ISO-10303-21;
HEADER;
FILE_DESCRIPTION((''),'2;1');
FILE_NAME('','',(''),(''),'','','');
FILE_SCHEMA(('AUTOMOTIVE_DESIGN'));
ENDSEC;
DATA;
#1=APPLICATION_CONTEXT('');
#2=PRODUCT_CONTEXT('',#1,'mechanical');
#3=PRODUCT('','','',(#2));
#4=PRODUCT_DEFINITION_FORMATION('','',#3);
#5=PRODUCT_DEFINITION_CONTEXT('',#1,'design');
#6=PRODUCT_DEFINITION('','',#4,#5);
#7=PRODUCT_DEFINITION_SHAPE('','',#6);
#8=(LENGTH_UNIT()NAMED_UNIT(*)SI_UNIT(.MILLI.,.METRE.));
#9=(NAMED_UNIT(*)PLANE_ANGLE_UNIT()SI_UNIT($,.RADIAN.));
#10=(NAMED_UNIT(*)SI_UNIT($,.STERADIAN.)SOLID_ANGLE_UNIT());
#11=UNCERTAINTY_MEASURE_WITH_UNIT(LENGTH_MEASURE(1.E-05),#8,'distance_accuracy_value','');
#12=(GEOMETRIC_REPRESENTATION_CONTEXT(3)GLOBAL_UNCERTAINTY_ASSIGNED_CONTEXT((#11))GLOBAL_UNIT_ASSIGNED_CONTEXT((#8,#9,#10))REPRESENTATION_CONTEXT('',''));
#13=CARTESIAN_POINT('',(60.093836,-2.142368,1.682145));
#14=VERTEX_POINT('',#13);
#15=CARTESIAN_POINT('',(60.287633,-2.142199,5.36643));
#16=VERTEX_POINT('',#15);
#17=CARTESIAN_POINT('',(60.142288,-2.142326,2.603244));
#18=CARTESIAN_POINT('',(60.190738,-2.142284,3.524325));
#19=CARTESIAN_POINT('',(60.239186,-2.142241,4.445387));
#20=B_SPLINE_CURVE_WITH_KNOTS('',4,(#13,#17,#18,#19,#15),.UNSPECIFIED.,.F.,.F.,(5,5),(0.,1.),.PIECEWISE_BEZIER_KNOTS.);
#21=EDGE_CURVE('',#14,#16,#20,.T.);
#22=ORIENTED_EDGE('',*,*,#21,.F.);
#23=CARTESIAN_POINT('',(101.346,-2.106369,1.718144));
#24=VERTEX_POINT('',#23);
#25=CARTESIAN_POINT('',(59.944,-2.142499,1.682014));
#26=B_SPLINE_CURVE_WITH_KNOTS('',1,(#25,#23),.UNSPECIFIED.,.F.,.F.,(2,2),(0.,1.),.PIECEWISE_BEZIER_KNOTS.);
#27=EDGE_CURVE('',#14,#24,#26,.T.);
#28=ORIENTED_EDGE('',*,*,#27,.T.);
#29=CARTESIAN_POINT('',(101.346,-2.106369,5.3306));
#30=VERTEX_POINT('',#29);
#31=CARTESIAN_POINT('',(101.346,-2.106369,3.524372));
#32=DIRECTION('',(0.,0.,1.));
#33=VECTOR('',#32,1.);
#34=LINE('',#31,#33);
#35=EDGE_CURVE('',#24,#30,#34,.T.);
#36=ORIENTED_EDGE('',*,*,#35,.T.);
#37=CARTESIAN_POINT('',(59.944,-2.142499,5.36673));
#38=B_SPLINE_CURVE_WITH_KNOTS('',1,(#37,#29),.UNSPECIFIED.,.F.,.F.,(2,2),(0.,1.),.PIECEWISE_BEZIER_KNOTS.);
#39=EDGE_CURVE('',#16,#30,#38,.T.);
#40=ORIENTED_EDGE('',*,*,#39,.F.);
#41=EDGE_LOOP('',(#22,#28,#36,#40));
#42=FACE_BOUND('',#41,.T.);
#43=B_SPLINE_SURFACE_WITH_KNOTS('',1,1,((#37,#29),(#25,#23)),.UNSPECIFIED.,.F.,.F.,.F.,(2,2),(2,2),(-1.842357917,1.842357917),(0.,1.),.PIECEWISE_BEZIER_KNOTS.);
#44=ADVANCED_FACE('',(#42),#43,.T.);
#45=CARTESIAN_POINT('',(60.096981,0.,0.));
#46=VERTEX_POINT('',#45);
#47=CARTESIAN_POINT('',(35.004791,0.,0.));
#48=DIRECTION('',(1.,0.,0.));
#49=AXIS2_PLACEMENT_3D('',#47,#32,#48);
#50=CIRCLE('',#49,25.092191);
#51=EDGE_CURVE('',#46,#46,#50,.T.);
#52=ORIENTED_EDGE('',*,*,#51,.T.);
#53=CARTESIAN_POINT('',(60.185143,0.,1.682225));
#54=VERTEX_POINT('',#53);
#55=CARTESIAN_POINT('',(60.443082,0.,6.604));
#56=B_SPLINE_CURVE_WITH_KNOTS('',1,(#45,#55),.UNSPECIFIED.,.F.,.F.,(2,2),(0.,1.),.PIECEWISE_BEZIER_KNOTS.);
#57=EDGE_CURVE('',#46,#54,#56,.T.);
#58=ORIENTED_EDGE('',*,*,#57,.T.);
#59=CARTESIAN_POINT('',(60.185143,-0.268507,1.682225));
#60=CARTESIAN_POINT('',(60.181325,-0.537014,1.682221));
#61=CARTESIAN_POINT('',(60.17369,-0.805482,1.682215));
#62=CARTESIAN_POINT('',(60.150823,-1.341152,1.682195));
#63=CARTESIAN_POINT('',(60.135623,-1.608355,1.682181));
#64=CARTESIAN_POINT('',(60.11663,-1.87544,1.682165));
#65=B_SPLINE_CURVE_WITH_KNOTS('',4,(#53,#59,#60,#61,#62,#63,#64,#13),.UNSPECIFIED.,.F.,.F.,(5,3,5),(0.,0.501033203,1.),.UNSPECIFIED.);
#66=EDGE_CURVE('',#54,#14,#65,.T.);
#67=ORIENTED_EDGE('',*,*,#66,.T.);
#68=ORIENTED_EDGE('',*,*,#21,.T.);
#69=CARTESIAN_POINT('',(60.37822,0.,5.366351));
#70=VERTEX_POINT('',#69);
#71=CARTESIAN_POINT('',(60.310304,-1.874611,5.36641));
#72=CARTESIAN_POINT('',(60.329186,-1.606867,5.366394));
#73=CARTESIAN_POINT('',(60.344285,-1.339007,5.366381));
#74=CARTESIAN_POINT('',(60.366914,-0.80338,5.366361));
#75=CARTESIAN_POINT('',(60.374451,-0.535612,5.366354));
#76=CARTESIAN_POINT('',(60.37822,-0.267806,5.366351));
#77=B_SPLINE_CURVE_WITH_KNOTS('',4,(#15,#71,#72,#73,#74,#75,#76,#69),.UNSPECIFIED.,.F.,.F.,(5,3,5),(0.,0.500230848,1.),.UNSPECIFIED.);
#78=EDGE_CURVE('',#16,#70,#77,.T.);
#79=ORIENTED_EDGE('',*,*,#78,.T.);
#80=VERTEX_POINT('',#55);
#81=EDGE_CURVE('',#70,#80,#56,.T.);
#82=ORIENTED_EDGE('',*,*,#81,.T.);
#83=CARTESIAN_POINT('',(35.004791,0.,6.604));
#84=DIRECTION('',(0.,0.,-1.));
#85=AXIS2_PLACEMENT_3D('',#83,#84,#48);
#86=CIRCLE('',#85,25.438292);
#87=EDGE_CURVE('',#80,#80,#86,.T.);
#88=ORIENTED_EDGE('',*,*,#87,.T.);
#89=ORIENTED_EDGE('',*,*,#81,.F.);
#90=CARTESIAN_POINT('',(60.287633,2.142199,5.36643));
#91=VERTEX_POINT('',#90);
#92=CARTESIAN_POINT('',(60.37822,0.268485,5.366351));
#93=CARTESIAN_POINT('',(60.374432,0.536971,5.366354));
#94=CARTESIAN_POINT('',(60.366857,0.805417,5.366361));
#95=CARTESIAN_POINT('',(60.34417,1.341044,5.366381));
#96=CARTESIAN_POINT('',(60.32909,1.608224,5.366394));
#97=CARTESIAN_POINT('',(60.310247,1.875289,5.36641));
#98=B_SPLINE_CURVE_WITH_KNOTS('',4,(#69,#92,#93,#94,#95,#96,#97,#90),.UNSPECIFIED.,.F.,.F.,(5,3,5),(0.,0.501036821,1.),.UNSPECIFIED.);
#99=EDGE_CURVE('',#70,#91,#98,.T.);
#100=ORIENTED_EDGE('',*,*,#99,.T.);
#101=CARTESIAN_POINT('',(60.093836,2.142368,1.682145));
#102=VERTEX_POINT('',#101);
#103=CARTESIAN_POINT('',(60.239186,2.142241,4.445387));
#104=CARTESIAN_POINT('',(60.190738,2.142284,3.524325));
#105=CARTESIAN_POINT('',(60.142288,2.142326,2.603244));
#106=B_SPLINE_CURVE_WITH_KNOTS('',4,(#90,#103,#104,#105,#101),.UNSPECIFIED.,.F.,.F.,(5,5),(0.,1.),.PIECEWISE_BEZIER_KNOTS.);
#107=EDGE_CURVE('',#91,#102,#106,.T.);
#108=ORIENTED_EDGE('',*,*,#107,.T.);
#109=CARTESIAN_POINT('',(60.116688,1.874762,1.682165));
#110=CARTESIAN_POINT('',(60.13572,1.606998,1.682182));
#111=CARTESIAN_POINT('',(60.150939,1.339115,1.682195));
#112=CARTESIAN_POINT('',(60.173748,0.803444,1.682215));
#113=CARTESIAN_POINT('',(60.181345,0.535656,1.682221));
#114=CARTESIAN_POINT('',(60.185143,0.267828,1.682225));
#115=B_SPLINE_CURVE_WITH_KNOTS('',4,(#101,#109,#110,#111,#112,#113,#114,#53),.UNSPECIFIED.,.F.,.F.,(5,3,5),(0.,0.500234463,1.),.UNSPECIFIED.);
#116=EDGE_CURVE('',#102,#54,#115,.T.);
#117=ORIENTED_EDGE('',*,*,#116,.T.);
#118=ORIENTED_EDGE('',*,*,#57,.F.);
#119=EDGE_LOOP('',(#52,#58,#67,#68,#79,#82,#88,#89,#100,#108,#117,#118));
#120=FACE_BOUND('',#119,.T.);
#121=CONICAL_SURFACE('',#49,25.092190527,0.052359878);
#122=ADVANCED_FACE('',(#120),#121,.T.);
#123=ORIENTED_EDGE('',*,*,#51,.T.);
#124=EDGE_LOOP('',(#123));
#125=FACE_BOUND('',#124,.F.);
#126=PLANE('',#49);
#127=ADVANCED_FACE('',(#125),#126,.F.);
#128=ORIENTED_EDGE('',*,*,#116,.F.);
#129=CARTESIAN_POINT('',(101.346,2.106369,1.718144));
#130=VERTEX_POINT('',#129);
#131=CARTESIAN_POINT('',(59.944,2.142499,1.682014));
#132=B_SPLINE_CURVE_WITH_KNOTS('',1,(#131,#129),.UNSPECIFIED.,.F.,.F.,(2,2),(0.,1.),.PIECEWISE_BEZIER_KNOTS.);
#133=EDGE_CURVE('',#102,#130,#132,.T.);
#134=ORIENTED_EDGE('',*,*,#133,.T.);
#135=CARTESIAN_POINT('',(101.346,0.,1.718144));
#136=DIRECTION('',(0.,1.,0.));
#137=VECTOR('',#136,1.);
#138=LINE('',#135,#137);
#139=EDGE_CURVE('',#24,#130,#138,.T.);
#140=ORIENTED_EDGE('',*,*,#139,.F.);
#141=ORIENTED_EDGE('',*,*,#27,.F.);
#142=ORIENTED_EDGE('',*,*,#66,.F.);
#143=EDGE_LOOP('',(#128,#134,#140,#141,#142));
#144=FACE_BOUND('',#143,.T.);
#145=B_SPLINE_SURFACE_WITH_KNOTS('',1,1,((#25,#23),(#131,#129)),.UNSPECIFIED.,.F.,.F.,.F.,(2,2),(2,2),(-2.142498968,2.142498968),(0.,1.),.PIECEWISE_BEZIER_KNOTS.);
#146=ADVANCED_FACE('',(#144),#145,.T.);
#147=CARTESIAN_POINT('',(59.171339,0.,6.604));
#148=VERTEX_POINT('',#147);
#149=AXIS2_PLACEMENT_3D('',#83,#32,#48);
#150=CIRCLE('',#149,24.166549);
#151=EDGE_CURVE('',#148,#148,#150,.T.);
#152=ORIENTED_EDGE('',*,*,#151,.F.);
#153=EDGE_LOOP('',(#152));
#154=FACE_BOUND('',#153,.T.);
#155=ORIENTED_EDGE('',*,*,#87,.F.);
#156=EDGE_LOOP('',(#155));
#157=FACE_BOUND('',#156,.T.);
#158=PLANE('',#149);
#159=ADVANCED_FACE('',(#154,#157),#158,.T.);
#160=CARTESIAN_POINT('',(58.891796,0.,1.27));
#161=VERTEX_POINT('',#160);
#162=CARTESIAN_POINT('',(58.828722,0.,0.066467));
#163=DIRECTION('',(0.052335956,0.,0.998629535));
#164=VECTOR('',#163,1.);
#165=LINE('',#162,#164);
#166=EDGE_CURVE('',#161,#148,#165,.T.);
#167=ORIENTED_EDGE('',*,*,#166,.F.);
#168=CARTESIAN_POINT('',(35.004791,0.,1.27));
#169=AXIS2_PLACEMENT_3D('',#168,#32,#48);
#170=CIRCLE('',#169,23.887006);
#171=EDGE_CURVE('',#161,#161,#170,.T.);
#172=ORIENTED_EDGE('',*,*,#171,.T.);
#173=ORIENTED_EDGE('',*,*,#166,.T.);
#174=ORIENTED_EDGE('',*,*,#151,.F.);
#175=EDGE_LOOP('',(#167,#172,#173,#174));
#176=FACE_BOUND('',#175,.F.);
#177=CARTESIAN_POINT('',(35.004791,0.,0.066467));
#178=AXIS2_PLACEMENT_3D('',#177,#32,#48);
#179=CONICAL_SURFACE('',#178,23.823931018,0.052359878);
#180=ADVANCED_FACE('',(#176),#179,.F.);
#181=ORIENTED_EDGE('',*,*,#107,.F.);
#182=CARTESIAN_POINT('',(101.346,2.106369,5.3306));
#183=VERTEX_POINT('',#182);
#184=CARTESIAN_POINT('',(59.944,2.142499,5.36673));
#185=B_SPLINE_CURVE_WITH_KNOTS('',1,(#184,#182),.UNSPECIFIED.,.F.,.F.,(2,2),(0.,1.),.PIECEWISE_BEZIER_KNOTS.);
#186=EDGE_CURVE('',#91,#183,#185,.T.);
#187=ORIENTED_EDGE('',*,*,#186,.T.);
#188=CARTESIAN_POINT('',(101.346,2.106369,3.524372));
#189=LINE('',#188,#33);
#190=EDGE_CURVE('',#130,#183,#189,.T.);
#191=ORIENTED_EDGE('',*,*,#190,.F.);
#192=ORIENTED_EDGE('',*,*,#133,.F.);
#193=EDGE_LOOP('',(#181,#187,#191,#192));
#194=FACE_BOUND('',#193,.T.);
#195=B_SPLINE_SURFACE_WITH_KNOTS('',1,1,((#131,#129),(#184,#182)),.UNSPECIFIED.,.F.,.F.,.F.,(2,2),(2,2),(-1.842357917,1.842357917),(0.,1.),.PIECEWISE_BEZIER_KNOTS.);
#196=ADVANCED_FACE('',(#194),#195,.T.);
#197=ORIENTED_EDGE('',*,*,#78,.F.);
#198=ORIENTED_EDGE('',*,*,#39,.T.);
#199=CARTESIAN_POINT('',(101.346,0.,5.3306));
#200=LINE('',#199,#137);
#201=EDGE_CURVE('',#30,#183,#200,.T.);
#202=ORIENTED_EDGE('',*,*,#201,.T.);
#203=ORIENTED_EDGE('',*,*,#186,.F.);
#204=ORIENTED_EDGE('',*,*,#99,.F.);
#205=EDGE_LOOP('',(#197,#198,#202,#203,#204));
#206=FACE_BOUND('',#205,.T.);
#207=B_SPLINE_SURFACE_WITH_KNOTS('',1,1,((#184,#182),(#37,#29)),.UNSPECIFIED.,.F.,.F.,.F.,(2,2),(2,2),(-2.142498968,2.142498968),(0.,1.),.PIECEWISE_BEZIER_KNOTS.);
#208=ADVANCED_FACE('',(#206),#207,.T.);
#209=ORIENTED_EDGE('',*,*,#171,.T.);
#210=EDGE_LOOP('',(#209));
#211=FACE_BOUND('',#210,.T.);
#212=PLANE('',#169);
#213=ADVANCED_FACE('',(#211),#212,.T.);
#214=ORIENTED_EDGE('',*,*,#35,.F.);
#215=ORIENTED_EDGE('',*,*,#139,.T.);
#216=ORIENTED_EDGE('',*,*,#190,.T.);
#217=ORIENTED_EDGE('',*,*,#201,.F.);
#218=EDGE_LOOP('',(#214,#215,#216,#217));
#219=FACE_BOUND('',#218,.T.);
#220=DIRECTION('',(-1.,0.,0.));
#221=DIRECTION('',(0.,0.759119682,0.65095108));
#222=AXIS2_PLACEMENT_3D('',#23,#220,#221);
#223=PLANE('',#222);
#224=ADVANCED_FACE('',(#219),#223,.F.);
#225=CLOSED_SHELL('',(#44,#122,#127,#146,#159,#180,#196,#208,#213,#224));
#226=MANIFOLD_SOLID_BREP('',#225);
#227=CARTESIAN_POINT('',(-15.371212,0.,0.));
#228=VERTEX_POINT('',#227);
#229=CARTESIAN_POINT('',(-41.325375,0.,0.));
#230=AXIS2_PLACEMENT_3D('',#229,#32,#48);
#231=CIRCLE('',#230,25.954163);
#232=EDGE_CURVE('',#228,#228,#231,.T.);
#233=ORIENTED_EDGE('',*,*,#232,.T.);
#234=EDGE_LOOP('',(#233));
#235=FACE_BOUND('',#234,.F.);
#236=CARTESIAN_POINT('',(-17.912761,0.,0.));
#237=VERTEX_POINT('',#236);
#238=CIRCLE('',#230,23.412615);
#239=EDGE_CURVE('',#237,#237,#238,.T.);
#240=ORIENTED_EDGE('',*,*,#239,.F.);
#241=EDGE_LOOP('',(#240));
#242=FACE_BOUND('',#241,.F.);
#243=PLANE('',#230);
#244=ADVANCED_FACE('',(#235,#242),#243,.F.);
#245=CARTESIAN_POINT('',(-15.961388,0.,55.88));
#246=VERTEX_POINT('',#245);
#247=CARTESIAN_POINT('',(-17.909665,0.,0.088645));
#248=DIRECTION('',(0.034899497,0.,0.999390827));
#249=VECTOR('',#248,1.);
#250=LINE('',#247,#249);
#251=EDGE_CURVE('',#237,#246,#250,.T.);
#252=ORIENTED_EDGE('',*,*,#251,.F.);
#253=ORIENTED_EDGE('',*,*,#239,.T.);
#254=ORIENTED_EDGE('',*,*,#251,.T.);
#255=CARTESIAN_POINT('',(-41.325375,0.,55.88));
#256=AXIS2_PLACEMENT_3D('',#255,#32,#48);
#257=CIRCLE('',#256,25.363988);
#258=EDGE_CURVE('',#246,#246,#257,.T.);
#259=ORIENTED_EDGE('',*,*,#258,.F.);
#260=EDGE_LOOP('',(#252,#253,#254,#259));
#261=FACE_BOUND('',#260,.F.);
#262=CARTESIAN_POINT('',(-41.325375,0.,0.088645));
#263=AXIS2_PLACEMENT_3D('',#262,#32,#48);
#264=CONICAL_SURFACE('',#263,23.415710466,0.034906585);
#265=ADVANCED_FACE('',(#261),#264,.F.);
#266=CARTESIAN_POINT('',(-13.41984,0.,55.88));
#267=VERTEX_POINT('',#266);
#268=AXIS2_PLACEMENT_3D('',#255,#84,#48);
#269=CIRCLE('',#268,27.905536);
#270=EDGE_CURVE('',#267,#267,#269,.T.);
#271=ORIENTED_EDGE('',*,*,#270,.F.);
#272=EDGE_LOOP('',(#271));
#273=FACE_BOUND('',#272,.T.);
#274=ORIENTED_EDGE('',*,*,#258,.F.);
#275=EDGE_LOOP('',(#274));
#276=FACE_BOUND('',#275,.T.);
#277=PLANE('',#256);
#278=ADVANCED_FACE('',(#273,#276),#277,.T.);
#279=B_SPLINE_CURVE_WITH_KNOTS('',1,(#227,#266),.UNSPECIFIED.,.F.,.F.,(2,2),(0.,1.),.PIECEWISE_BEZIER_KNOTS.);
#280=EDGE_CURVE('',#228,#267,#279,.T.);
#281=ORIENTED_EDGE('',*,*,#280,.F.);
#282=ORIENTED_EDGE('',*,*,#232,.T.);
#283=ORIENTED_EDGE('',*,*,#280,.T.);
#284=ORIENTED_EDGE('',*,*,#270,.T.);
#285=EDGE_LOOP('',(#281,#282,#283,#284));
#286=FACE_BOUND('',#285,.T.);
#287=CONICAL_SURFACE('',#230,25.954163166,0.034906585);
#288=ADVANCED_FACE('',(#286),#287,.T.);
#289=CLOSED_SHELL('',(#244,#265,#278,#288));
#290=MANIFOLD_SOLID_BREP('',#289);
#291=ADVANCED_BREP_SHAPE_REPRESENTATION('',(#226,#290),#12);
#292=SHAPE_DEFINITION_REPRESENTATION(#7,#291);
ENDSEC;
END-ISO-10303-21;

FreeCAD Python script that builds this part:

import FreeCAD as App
import Part
import Sketcher
from FreeCAD import Vector
Q = App.Units.Quantity


def faces_at(feature, points):
    """Names of the faces that lie closest to the given points."""
    faces = feature.Shape.Faces
    near = lambda p: min(range(len(faces)), key=lambda i: faces[i].distToShape(Part.Vertex(*p))[0])
    return sorted({f"Face{near(p) + 1}" for p in points})

doc = App.newDocument("Part")
body = doc.addObject("PartDesign::Body", "Body")

sketch1 = body.newObject("Sketcher::SketchObject", "Sketch")
sketch1.AttachmentSupport = (doc.getObject("XY_Plane"), [""])
sketch1.MapMode = "FlatFace"
sketch1.addGeometry(Part.Circle(Vector(35, 0, 0), Vector(0, 0, 1), 25), False)
sketch1.addConstraint(Sketcher.Constraint("PointOnObject", 0, 3, -1))
sketch1.addConstraint(Sketcher.Constraint("Diameter", 0, 50.184381))
sketch1.addConstraint(Sketcher.Constraint("DistanceX", -1, 1, 0, 3, 35.004791))
pad1 = body.newObject("PartDesign::Pad", "Pad")
pad1.Profile = sketch1
pad1.Length = Q("0.26 in")
pad1.TaperAngle = 3
doc.recompute()

thickness = body.newObject("PartDesign::Thickness", "Thickness")
thickness.Base = (pad1, faces_at(pad1, [(35.005, 0, 6.604)]))
thickness.Value = Q("0.05 in")
thickness.Reversed = True
thickness.Join = "Intersection"

sketch2 = body.newObject("Sketcher::SketchObject", "Sketch001")
sketch2.AttachmentSupport = (doc.getObject("YZ_Plane"), [""])
sketch2.MapMode = "FlatFace"
sketch2.AttachmentOffset = App.Placement(Vector(0, 0, 2.36 * 25.4), App.Rotation())
sketch2.addGeometry(Part.LineSegment(Vector(-2.1, 5.4, 0), Vector(-2.1, 1.7, 0)), False)
sketch2.addGeometry(Part.LineSegment(Vector(-2.1, 1.7, 0), Vector(2.1, 1.7, 0)), False)
sketch2.addGeometry(Part.LineSegment(Vector(2.1, 1.7, 0), Vector(2.1, 5.4, 0)), False)
sketch2.addGeometry(Part.LineSegment(Vector(2.1, 5.4, 0), Vector(-2.1, 5.4, 0)), False)
sketch2.addConstraint(Sketcher.Constraint("Coincident", 0, 2, 1, 1))
sketch2.addConstraint(Sketcher.Constraint("Coincident", 1, 2, 2, 1))
sketch2.addConstraint(Sketcher.Constraint("Coincident", 2, 2, 3, 1))
sketch2.addConstraint(Sketcher.Constraint("Coincident", 3, 2, 0, 1))
sketch2.addConstraint(Sketcher.Constraint("Vertical", 0))
sketch2.addConstraint(Sketcher.Constraint("Horizontal", 1))
sketch2.addConstraint(Sketcher.Constraint("Vertical", 2))
sketch2.addConstraint(Sketcher.Constraint("Horizontal", 3))
sketch2.addConstraint(Sketcher.Constraint("DistanceX", 0, 2, -1, 1, 2.142499))
sketch2.addConstraint(Sketcher.Constraint("DistanceX", -1, 1, 1, 2, 2.142499))
sketch2.addConstraint(Sketcher.Constraint("DistanceY", 0, 2, 0, 1, 3.684716))
sketch2.addConstraint(Sketcher.Constraint("DistanceY", -1, 1, 2, 2, 5.36673))
pad2 = body.newObject("PartDesign::Pad", "Pad001")
pad2.Profile = sketch2
pad2.Length = Q("1.63 in")
pad2.TaperAngle = -0.05
body2 = doc.addObject("PartDesign::Body", "Body001")

sketch3 = body2.newObject("Sketcher::SketchObject", "Sketch002")
sketch3.AttachmentSupport = (doc.getObject("XY_Plane001"), [""])
sketch3.MapMode = "FlatFace"
sketch3.addGeometry(Part.Circle(Vector(-41, 0, 0), Vector(0, 0, 1), 26), False)
sketch3.addConstraint(Sketcher.Constraint("PointOnObject", 0, 3, -1))
sketch3.addConstraint(Sketcher.Constraint("Diameter", 0, 51.908326))
sketch3.addConstraint(Sketcher.Constraint("DistanceX", 0, 3, -1, 1, 41.325375))
pad3 = body2.newObject("PartDesign::Pad", "Pad002")
pad3.Profile = sketch3
pad3.Length = Q("2.2 in")
pad3.TaperAngle = 2
doc.recompute()

thickness2 = body2.newObject("PartDesign::Thickness", "Thickness001")
thickness2.Base = (pad3, faces_at(pad3, [(-41.325, 0, 55.88), (-41.325, 0, 0)]))
thickness2.Value = Q("0.1 in")
thickness2.Reversed = True
thickness2.Join = "Intersection"

doc.recompute()
